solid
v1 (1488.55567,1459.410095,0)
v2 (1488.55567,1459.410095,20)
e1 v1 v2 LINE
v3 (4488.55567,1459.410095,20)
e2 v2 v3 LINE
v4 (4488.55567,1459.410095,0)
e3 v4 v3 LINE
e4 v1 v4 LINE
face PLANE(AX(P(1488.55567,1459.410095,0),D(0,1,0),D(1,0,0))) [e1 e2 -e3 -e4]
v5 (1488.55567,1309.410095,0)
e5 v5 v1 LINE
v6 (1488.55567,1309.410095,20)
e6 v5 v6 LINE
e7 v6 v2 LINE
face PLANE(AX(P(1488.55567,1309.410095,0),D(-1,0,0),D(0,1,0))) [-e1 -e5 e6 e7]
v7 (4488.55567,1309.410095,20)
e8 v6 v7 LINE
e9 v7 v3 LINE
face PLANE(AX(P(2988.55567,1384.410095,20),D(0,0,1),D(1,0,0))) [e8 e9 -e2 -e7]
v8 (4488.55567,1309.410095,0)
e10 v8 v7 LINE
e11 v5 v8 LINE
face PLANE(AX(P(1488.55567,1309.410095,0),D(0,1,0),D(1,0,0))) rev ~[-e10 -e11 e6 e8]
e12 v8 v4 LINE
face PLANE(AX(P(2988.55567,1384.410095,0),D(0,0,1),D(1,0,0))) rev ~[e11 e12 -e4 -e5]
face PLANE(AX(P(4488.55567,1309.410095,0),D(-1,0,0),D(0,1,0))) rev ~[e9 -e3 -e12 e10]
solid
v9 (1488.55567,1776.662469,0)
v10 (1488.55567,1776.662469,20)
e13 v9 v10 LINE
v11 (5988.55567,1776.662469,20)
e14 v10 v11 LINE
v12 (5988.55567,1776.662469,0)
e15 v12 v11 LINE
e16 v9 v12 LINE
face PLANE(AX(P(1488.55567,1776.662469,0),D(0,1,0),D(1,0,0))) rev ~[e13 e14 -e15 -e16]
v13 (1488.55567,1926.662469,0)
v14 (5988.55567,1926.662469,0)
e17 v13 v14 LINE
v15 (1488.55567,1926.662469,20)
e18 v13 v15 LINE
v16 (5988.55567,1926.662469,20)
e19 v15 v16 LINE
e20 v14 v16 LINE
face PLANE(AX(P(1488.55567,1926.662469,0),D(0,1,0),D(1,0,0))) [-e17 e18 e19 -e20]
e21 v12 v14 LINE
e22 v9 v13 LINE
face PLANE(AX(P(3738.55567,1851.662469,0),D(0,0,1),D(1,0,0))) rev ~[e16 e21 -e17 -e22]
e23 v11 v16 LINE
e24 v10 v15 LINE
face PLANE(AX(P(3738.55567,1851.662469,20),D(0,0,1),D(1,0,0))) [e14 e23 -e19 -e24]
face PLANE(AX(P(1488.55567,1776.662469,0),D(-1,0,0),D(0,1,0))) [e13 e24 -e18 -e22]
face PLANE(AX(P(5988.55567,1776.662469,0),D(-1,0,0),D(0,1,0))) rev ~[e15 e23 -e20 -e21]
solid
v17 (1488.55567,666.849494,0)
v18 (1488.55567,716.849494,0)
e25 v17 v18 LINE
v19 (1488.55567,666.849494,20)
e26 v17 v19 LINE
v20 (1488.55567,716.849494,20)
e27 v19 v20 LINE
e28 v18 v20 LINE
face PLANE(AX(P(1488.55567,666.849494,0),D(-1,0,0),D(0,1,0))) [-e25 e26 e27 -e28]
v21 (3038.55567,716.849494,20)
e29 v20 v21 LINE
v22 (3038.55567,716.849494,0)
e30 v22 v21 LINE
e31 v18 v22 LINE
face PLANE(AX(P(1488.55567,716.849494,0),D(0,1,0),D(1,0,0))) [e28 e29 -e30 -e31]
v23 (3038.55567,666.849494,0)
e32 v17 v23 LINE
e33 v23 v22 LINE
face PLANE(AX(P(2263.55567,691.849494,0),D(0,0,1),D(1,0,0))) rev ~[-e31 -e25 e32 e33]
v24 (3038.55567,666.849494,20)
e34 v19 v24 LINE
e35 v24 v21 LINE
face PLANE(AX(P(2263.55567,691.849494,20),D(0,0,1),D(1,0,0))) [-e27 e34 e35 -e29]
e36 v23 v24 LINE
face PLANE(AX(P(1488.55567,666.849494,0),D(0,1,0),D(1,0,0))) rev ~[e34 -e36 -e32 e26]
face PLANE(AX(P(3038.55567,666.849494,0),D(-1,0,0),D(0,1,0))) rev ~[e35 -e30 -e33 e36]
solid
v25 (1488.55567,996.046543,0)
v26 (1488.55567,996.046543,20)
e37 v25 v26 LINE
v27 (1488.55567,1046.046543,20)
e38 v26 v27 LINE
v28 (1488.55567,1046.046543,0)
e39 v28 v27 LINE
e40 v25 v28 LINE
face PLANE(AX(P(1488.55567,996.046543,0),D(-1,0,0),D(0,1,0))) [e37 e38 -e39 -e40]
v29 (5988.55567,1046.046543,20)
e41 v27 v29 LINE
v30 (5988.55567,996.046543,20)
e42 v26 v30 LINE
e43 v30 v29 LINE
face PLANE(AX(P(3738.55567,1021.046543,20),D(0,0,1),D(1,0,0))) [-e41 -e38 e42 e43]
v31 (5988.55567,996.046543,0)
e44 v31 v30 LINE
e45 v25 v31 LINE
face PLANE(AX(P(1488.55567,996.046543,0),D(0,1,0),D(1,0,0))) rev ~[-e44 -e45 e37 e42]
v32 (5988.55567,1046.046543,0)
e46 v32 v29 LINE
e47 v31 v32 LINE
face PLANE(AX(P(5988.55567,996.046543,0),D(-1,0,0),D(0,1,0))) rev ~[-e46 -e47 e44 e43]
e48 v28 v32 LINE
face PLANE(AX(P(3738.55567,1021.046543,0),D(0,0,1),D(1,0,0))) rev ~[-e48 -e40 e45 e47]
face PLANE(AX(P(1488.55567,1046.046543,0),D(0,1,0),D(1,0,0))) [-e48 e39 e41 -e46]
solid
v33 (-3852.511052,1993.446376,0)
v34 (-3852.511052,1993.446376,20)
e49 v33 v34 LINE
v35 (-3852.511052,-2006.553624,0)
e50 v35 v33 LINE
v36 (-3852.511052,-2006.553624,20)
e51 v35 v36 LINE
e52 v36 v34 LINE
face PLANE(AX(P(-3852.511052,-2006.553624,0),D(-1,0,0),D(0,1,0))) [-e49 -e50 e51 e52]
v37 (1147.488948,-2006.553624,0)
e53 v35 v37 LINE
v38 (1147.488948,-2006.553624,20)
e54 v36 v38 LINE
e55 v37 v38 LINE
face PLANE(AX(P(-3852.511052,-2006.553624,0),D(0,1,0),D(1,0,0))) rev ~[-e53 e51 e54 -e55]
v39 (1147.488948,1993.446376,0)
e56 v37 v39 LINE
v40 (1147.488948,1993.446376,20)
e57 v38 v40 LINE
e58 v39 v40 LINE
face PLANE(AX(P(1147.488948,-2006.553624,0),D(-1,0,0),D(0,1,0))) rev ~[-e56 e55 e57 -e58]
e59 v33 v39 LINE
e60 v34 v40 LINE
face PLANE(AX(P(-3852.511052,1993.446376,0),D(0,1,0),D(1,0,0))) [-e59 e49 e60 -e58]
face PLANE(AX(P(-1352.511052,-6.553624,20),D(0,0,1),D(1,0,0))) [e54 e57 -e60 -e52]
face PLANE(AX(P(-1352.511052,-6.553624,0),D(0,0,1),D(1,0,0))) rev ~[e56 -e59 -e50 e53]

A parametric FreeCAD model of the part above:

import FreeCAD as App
import Part
import Sketcher
from FreeCAD import Vector
Q = App.Units.Quantity

doc = App.newDocument("Part")
body = doc.addObject("PartDesign::Body", "Body")
body.AllowCompound = True

# Sketch on XY plane
sketch1 = body.newObject("Sketcher::SketchObject", "Sketch")
sketch1.AttachmentSupport = (doc.getObject("XY_Plane"), [""])
sketch1.MapMode = "FlatFace"
sketch1.addGeometry(Part.LineSegment(Vector(-3853, 1993, 0), Vector(-3853, -2007, 0)), False)
sketch1.addGeometry(Part.LineSegment(Vector(-3853, -2007, 0), Vector(1147, -2007, 0)), False)
sketch1.addGeometry(Part.LineSegment(Vector(1147, -2007, 0), Vector(1147, 1993, 0)), False)
sketch1.addGeometry(Part.LineSegment(Vector(1147, 1993, 0), Vector(-3853, 1993, 0)), False)
sketch1.addGeometry(Part.LineSegment(Vector(1489, 1927, 0), Vector(1489, 1777, 0)), False)
sketch1.addGeometry(Part.LineSegment(Vector(1489, 1777, 0), Vector(5989, 1777, 0)), False)
sketch1.addGeometry(Part.LineSegment(Vector(5989, 1777, 0), Vector(5989, 1927, 0)), False)
sketch1.addGeometry(Part.LineSegment(Vector(5989, 1927, 0), Vector(1489, 1927, 0)), False)
sketch1.addGeometry(Part.LineSegment(Vector(1489, 1459, 0), Vector(1489, 1309, 0)), False)
sketch1.addGeometry(Part.LineSegment(Vector(1489, 1309, 0), Vector(4489, 1309, 0)), False)
sketch1.addGeometry(Part.LineSegment(Vector(4489, 1309, 0), Vector(4489, 1459, 0)), False)
sketch1.addGeometry(Part.LineSegment(Vector(4489, 1459, 0), Vector(1489, 1459, 0)), False)
sketch1.addGeometry(Part.LineSegment(Vector(1489, 1046, 0), Vector(1489, 996, 0)), False)
sketch1.addGeometry(Part.LineSegment(Vector(1489, 996, 0), Vector(5989, 996, 0)), False)
sketch1.addGeometry(Part.LineSegment(Vector(5989, 996, 0), Vector(5989, 1046, 0)), False)
sketch1.addGeometry(Part.LineSegment(Vector(5989, 1046, 0), Vector(1489, 1046, 0)), False)
sketch1.addGeometry(Part.LineSegment(Vector(1489, 717, 0), Vector(1489, 667, 0)), False)
sketch1.addGeometry(Part.LineSegment(Vector(1489, 667, 0), Vector(3039, 667, 0)), False)
sketch1.addGeometry(Part.LineSegment(Vector(3039, 667, 0), Vector(3039, 717, 0)), False)
sketch1.addGeometry(Part.LineSegment(Vector(3039, 717, 0), Vector(1489, 717, 0)), False)
sketch1.addConstraint(Sketcher.Constraint("Coincident", 0, 2, 1, 1))
sketch1.addConstraint(Sketcher.Constraint("Coincident", 1, 2, 2, 1))
sketch1.addConstraint(Sketcher.Constraint("Coincident", 2, 2, 3, 1))
sketch1.addConstraint(Sketcher.Constraint("Coincident", 3, 2, 0, 1))
sketch1.addConstraint(Sketcher.Constraint("Coincident", 4, 2, 5, 1))
sketch1.addConstraint(Sketcher.Constraint("Coincident", 5, 2, 6, 1))
sketch1.addConstraint(Sketcher.Constraint("Coincident", 6, 2, 7, 1))
sketch1.addConstraint(Sketcher.Constraint("Coincident", 7, 2, 4, 1))
sketch1.addConstraint(Sketcher.Constraint("Coincident", 8, 2, 9, 1))
sketch1.addConstraint(Sketcher.Constraint("Coincident", 9, 2, 10, 1))
sketch1.addConstraint(Sketcher.Constraint("Coincident", 10, 2, 11, 1))
sketch1.addConstraint(Sketcher.Constraint("Coincident", 11, 2, 8, 1))
sketch1.addConstraint(Sketcher.Constraint("Coincident", 12, 2, 13, 1))
sketch1.addConstraint(Sketcher.Constraint("Coincident", 13, 2, 14, 1))
sketch1.addConstraint(Sketcher.Constraint("Coincident", 14, 2, 15, 1))
sketch1.addConstraint(Sketcher.Constraint("Coincident", 15, 2, 12, 1))
sketch1.addConstraint(Sketcher.Constraint("Coincident", 16, 2, 17, 1))
sketch1.addConstraint(Sketcher.Constraint("Coincident", 17, 2, 18, 1))
sketch1.addConstraint(Sketcher.Constraint("Coincident", 18, 2, 19, 1))
sketch1.addConstraint(Sketcher.Constraint("Coincident", 19, 2, 16, 1))
sketch1.addConstraint(Sketcher.Constraint("Vertical", 0))
sketch1.addConstraint(Sketcher.Constraint("Horizontal", 1))
sketch1.addConstraint(Sketcher.Constraint("Vertical", 2))
sketch1.addConstraint(Sketcher.Constraint("Horizontal", 3))
sketch1.addConstraint(Sketcher.Constraint("Vertical", 4))
sketch1.addConstraint(Sketcher.Constraint("Horizontal", 5))
sketch1.addConstraint(Sketcher.Constraint("Vertical", 6))
sketch1.addConstraint(Sketcher.Constraint("Horizontal", 7))
sketch1.addConstraint(Sketcher.Constraint("Vertical", 8))
sketch1.addConstraint(Sketcher.Constraint("Horizontal", 9))
sketch1.addConstraint(Sketcher.Constraint("Vertical", 10))
sketch1.addConstraint(Sketcher.Constraint("Horizontal", 11))
sketch1.addConstraint(Sketcher.Constraint("Vertical", 12))
sketch1.addConstraint(Sketcher.Constraint("Horizontal", 13))
sketch1.addConstraint(Sketcher.Constraint("Vertical", 14))
sketch1.addConstraint(Sketcher.Constraint("Horizontal", 15))
sketch1.addConstraint(Sketcher.Constraint("Vertical", 16))
sketch1.addConstraint(Sketcher.Constraint("Horizontal", 17))
sketch1.addConstraint(Sketcher.Constraint("Vertical", 18))
sketch1.addConstraint(Sketcher.Constraint("Horizontal", 19))
sketch1.addConstraint(Sketcher.Constraint("Vertical", 7, 2, 8, 2))
sketch1.addConstraint(Sketcher.Constraint("Vertical", 11, 2, 12, 2))
sketch1.addConstraint(Sketcher.Constraint("Vertical", 6, 2, 13, 2))
sketch1.addConstraint(Sketcher.Constraint("Vertical", 15, 2, 16, 2))
sketch1.addConstraint(Sketcher.Constraint("Equal", 6, 8))
sketch1.addConstraint(Sketcher.Constraint("Equal", 14, 16))
sketch1.addConstraint(Sketcher.Constraint("DistanceX", 1, 1, 1, 2, Q("5000 mm")))
sketch1.addConstraint(Sketcher.Constraint("DistanceX", 5, 1, 5, 2, Q("4500 mm")))
sketch1.addConstraint(Sketcher.Constraint("DistanceX", 9, 1, 9, 2, Q("3000 mm")))
sketch1.addConstraint(Sketcher.Constraint("DistanceX", 17, 1, 17, 2, Q("1550 mm")))
sketch1.addConstraint(Sketcher.Constraint("DistanceY", 0, 2, 0, 1, Q("4000 mm")))
sketch1.addConstraint(Sketcher.Constraint("DistanceY", 4, 2, 4, 1, Q("150 mm")))
sketch1.addConstraint(Sketcher.Constraint("DistanceY", 12, 2, 12, 1, Q("50 mm")))
sketch1.addConstraint(Sketcher.Constraint("DistanceY", 16, 2, 8, 2, Q("642.560601 mm")))
sketch1.addConstraint(Sketcher.Constraint("DistanceX", 0, 2, -1, 1, Q("3852.511052 mm")))
sketch1.addConstraint(Sketcher.Constraint("DistanceX", -1, 1, 4, 2, Q("1488.55567 mm")))
sketch1.addConstraint(Sketcher.Constraint("DistanceY", -1, 1, 4, 2, Q("1776.662469 mm")))
sketch1.addConstraint(Sketcher.Constraint("DistanceY", 8, 2, 2, 2, Q("684.036281 mm")))
sketch1.addConstraint(Sketcher.Constraint("DistanceY", 12, 2, 8, 2, Q("313.363552 mm")))
sketch1.addConstraint(Sketcher.Constraint("DistanceY", 0, 2, -1, 1, Q("2006.553624 mm")))
pad1 = body.newObject("PartDesign::Pad", "Pad")
pad1.Profile = sketch1
pad1.Length = 20

doc.recompute()
